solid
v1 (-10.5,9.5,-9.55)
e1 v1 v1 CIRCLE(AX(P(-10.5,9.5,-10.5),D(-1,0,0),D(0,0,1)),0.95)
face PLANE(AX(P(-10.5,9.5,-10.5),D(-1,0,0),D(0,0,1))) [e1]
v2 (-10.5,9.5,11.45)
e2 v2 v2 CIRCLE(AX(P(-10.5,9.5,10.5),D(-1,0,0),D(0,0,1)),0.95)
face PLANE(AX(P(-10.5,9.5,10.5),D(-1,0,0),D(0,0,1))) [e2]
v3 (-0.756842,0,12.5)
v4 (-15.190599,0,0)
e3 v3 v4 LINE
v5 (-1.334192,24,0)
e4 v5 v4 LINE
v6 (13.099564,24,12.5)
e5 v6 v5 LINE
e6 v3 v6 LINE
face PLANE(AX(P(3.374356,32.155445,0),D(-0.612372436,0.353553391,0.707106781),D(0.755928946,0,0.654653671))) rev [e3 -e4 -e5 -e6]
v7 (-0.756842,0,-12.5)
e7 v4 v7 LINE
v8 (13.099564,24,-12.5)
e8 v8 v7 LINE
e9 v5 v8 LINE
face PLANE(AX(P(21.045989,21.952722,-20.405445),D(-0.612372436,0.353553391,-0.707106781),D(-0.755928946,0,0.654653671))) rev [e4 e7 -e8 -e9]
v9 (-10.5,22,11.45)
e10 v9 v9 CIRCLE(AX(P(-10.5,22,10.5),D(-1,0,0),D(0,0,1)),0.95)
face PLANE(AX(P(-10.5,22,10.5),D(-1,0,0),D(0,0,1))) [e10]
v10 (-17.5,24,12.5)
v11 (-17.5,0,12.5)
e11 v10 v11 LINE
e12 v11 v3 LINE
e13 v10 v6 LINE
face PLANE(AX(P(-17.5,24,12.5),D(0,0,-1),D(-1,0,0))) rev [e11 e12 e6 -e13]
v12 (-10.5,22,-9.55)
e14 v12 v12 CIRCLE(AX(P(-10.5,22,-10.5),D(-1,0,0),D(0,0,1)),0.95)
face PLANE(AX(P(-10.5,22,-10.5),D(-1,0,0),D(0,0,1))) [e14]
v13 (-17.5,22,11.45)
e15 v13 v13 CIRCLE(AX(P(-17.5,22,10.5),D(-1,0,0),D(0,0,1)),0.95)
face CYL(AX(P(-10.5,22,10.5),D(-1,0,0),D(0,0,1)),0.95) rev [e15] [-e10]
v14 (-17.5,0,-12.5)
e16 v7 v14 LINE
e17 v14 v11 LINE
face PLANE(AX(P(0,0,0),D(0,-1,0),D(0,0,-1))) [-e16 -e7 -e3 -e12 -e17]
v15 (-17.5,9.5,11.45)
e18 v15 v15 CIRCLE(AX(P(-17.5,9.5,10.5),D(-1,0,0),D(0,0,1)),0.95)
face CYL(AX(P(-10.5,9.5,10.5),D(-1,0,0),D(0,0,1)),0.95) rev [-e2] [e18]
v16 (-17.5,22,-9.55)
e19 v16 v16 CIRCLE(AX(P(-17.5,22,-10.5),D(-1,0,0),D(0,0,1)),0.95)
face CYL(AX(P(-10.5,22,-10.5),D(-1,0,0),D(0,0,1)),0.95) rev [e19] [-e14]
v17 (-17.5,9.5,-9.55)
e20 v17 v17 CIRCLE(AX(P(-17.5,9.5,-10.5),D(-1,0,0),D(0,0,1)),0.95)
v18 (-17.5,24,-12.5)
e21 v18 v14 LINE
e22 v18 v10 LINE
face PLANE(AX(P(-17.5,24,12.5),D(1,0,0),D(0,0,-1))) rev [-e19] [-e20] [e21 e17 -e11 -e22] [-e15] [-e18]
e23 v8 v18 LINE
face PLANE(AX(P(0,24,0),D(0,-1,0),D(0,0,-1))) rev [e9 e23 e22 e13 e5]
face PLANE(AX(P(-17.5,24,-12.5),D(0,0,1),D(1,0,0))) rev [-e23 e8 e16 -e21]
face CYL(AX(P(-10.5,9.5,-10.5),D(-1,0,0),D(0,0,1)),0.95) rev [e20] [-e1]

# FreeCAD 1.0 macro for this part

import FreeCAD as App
import Part
import Sketcher

V = App.Vector
Q = App.Units.Quantity


def add_polygon(sketch, points):
    """Adds a closed chain of lines whose ends are joined by coincident constraints."""
    first, n = sketch.GeometryCount, len(points)
    for a, b in zip(points, points[1:] + points[:1]):
        sketch.addGeometry(Part.LineSegment(App.Vector(*a, 0), App.Vector(*b, 0)), False)
    for i in range(n):
        sketch.addConstraint(Sketcher.Constraint("Coincident", first + i, 2, first + (i + 1) % n, 1))

doc = App.newDocument("Part")
body = doc.addObject("PartDesign::Body", "Body")

sketch1 = doc.addObject("Sketcher::SketchObject", "Sketch")
body.addObject(sketch1)
sketch1.AttachmentSupport = (doc.XZ_Plane, [""])
sketch1.MapMode = "FlatFace"
add_polygon(sketch1, [(-17.5, -12.5), (-17.5, 12.5), (17.5, 12.5), (17.5, -12.5)])
sketch1.addConstraint([
    Sketcher.Constraint("Vertical", 0),
    Sketcher.Constraint("Horizontal", 1),
    Sketcher.Constraint("Vertical", 2),
    Sketcher.Constraint("Horizontal", 3),
    Sketcher.Constraint("Symmetric", 0, 2, 2, 2, -1, 1),
    Sketcher.Constraint("DistanceX", 1, 1, 1, 2, Q("35 mm")),
    Sketcher.Constraint("DistanceY", 0, 1, 0, 2, Q("25 mm")),
])
pad1 = doc.addObject("PartDesign::Pad", "Pad")
body.addObject(pad1)
pad1.Profile = sketch1
pad1.Length = 24
pad1.Reversed = True

sketch2 = doc.addObject("Sketcher::SketchObject", "Sketch001")
body.addObject(sketch2)
sketch2.Placement = App.Placement(V(-4.375, -7.577722, 0), App.Rotation(V(-0.866025404, 0.5, 0), V(0, 0, -1), V(-0.5, -0.866025404, 0), "ZXY"))
add_polygon(sketch2, [(13.155445, 0), (-7.25, 20.405445), (-27.655445, 0), (-7.25, -20.405445)])
sketch2.addConstraint([
    Sketcher.Constraint("Symmetric", 0, 2, 2, 2, -1),
    Sketcher.Constraint("PointOnObject", 1, 2, -1),
    Sketcher.Constraint("PointOnObject", 3, 2, -1),
    Sketcher.Constraint("Perpendicular", 0, 1),
    Sketcher.Constraint("Perpendicular", 1, 2),
    Sketcher.Constraint("DistanceX", 0, 2, -1, 1, Q("7.25 mm")),
    Sketcher.Constraint("DistanceY", 2, 2, 0, 2, Q("40.810889 mm")),
])
pocket1 = doc.addObject("PartDesign::Pocket", "Pocket")
body.addObject(pocket1)
pocket1.Profile = sketch2
pocket1.Type = "ThroughAll"

sketch3 = doc.addObject("Sketcher::SketchObject", "Sketch002")
body.addObject(sketch3)
sketch3.AttachmentSupport = (doc.YZ_Plane, [""])
sketch3.MapMode = "FlatFace"
sketch3.AttachmentOffset = App.Placement(V(0, 0, -17.5), App.Rotation())
sketch3.addGeometry([
    Part.Circle(V(22, -10.5, 0), V(0, 0, 1), 0.95),
    Part.Circle(V(22, 10.5, 0), V(0, 0, 1), 0.95),
    Part.Circle(V(9.5, 10.5, 0), V(0, 0, 1), 0.95),
    Part.Circle(V(9.5, -10.5, 0), V(0, 0, 1), 0.95),
], False)
sketch3.addConstraint([
    Sketcher.Constraint("Equal", 0, 1),
    Sketcher.Constraint("Equal", 1, 2),
    Sketcher.Constraint("Equal", 2, 3),
    Sketcher.Constraint("Symmetric", 0, 3, 1, 3, -1),
    Sketcher.Constraint("Symmetric", 2, 3, 3, 3, -1),
    Sketcher.Constraint("Horizontal", 1, 3, 2, 3),
    Sketcher.Constraint("Diameter", 0, Q("1.9 mm")),
    Sketcher.Constraint("DistanceX", -1, 1, 0, 3, Q("22 mm")),
    Sketcher.Constraint("DistanceY", 0, 3, 1, 3, Q("21 mm")),
    Sketcher.Constraint("DistanceX", -1, 1, 2, 3, Q("9.5 mm")),
])
pocket2 = doc.addObject("PartDesign::Pocket", "Pocket001")
body.addObject(pocket2)
pocket2.Profile = sketch3
pocket2.Length = 7
pocket2.Reversed = True

doc.recompute()
